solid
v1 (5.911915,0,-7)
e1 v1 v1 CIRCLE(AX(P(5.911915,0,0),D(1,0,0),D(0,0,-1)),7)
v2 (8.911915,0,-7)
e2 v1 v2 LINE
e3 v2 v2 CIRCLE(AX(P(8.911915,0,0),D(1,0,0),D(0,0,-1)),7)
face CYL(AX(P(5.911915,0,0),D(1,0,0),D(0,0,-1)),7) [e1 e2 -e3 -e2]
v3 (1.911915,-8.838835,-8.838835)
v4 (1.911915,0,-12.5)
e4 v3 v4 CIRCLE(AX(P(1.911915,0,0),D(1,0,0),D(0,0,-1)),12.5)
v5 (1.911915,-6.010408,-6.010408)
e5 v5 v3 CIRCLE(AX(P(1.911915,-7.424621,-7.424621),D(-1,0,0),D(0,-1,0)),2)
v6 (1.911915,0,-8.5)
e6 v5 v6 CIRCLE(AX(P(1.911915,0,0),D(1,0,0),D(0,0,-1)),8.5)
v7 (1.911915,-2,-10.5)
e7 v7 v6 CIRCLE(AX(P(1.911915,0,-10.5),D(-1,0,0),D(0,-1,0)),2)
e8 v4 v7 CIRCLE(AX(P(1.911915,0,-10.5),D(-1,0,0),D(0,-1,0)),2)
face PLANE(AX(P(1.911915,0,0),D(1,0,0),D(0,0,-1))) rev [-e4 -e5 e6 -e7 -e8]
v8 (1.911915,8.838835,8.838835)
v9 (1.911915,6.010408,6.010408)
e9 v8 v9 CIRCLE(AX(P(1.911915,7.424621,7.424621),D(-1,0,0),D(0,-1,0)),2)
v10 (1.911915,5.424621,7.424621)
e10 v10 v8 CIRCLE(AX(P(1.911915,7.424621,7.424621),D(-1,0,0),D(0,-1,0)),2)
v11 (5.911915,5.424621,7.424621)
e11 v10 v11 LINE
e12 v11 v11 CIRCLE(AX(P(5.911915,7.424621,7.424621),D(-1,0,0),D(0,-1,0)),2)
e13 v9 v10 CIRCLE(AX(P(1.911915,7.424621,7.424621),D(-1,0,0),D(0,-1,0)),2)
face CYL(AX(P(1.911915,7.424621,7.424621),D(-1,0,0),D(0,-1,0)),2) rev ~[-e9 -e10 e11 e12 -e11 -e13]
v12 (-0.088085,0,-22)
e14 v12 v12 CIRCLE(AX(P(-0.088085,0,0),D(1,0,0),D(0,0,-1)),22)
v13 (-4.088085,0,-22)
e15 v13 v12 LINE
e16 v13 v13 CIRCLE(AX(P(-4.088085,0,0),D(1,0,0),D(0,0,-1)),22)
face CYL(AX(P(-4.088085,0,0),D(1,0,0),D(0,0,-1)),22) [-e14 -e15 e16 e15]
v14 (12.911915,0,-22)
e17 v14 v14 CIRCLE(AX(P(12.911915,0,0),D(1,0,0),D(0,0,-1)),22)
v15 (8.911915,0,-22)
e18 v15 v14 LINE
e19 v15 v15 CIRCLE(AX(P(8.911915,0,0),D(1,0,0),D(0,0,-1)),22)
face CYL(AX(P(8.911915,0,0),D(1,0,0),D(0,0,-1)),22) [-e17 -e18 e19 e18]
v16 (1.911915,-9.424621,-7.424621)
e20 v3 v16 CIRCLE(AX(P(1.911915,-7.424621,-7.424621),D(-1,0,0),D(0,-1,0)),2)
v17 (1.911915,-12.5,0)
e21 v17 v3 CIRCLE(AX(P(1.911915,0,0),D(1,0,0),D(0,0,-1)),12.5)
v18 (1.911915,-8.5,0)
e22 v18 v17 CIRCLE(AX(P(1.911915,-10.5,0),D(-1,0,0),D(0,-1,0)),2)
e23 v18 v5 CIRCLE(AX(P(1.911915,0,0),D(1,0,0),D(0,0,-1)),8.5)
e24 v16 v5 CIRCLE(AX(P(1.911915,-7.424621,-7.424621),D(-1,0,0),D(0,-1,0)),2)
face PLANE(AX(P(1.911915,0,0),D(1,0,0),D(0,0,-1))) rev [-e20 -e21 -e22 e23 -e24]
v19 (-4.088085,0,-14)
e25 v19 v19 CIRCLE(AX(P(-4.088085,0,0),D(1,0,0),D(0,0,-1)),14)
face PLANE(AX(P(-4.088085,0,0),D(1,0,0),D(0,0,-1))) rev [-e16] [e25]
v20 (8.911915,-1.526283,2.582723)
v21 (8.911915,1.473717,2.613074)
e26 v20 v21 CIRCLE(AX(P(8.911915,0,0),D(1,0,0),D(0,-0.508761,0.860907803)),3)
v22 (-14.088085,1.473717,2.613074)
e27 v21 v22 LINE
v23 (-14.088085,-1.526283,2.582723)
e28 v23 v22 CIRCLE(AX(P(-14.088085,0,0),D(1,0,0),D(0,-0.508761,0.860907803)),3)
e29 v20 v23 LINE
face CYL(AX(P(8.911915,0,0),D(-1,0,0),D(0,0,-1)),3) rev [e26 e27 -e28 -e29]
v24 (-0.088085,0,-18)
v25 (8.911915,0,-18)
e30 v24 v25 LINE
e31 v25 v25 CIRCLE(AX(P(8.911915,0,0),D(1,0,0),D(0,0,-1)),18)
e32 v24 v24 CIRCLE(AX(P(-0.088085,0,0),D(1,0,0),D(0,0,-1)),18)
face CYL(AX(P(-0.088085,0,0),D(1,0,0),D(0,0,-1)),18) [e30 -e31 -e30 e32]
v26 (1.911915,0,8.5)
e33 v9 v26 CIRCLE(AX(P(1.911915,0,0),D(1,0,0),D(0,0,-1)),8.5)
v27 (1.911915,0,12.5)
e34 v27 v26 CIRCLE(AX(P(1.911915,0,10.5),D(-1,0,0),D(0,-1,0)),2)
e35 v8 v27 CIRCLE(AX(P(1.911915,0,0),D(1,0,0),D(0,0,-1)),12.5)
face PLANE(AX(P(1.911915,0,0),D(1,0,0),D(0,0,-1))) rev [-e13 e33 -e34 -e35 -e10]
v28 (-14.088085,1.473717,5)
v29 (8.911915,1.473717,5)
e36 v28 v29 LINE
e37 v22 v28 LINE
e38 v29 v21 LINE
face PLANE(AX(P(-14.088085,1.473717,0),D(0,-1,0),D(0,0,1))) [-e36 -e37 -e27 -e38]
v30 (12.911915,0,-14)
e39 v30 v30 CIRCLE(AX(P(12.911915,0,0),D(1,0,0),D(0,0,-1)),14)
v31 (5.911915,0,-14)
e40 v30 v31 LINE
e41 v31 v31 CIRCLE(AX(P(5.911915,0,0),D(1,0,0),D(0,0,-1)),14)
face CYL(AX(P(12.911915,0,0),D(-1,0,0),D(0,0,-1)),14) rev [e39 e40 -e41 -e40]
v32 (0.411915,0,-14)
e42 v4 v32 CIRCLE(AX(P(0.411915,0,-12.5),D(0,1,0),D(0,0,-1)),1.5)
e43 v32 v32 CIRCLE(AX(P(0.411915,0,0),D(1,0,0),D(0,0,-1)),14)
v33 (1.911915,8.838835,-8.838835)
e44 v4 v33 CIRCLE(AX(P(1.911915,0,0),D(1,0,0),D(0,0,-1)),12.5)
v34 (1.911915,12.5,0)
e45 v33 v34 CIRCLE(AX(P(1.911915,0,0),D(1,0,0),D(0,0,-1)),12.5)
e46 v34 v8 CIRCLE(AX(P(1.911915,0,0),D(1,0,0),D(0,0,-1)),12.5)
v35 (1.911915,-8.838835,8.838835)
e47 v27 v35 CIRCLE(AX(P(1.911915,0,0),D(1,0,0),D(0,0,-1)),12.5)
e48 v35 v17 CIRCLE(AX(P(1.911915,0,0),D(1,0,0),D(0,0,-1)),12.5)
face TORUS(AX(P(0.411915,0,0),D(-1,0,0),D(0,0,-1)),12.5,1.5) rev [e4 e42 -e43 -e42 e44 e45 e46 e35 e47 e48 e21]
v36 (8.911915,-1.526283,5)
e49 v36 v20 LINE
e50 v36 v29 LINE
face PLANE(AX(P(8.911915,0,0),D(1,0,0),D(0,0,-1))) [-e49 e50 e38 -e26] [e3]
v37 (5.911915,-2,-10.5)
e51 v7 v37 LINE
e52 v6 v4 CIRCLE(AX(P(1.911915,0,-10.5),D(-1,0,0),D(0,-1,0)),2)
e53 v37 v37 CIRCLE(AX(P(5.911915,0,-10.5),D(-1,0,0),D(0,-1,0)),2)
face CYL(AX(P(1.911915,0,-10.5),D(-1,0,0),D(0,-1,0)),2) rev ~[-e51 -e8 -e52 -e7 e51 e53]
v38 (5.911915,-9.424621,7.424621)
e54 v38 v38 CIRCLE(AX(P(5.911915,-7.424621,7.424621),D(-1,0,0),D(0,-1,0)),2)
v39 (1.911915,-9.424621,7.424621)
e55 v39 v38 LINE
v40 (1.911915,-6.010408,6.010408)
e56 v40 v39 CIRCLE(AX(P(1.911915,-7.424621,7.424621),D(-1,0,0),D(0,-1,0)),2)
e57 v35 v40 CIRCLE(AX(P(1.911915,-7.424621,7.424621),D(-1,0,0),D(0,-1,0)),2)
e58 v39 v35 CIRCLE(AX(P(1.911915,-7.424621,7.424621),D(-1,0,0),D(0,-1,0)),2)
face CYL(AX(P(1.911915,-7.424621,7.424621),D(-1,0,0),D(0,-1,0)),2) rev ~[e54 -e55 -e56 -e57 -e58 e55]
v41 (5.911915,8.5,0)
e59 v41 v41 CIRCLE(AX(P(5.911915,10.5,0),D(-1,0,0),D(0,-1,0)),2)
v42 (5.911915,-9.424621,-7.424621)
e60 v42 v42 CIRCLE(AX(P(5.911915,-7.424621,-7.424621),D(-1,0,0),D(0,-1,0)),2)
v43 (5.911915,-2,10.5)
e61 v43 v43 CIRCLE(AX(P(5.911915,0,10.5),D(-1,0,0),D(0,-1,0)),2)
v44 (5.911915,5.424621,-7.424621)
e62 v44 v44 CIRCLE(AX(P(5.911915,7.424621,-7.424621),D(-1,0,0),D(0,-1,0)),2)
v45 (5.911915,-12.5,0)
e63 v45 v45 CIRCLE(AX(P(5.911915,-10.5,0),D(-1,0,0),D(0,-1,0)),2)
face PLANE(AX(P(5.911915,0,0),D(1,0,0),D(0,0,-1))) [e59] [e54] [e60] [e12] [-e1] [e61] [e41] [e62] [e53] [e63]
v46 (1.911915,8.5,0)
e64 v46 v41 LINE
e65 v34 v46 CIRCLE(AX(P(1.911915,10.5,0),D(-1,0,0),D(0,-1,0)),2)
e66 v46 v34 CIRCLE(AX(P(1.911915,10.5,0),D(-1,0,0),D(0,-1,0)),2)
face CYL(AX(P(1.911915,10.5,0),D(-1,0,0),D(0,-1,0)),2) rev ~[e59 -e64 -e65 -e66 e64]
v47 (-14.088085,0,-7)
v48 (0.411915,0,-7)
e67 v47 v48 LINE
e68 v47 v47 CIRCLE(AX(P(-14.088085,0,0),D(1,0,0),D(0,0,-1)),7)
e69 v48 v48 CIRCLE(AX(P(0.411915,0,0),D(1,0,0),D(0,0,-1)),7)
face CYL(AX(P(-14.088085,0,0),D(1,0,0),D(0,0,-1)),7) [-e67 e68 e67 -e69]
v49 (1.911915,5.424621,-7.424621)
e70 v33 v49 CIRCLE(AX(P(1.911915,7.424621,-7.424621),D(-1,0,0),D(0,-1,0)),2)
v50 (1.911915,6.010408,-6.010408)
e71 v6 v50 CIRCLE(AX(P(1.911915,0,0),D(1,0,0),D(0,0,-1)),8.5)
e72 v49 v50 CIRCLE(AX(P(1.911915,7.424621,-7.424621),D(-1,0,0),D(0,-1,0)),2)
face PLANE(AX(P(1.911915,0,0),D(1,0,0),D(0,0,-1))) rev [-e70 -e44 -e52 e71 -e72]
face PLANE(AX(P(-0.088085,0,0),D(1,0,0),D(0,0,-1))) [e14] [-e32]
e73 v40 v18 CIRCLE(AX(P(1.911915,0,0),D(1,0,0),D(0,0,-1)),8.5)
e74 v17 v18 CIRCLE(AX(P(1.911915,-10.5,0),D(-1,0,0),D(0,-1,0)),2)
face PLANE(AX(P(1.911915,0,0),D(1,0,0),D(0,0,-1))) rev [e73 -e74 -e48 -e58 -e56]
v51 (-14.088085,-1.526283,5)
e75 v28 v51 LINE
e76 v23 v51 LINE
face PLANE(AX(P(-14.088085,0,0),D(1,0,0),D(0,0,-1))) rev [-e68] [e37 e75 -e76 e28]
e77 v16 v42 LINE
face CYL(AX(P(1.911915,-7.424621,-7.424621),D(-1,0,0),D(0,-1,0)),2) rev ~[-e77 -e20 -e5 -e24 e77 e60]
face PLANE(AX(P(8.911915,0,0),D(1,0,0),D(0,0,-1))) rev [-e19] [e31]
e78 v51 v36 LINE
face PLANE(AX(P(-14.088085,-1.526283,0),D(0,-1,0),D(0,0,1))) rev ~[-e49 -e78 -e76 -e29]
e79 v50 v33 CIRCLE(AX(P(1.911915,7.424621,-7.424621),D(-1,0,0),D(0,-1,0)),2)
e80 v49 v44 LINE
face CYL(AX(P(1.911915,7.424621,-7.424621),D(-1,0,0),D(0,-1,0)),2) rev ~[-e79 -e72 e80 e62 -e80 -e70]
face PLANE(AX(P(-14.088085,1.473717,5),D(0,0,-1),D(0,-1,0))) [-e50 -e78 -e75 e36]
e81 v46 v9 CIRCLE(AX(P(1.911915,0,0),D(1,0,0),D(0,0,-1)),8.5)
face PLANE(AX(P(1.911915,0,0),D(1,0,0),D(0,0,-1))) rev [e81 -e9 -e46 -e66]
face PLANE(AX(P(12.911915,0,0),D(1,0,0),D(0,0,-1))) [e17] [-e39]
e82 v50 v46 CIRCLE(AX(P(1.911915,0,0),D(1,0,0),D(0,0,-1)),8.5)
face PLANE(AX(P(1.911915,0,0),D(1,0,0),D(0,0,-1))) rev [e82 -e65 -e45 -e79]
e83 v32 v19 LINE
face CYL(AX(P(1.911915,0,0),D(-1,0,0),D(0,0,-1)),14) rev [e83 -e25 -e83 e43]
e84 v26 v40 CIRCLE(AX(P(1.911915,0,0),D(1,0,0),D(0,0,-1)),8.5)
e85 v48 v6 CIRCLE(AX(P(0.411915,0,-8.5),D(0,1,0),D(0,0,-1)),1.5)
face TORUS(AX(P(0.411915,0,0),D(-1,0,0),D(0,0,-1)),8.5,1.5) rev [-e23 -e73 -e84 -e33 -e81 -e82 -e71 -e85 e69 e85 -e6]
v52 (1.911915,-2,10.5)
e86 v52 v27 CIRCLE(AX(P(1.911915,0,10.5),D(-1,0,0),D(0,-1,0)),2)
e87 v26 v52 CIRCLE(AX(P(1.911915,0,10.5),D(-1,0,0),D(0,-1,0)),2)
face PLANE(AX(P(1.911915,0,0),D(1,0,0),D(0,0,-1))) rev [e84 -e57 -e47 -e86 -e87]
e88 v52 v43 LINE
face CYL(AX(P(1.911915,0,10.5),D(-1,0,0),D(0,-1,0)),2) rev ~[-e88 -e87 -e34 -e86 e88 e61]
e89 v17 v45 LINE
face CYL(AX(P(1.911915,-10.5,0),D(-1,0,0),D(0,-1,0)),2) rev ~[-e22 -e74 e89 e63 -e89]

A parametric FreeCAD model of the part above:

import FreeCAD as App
import Part
import Sketcher
Q = App.Units.Quantity


def edges_at(feature, points):
    """Names of the edges that pass closest to the given points."""
    edges = feature.Shape.Edges
    near = lambda p: min(range(len(edges)), key=lambda i: edges[i].distToShape(Part.Vertex(*p))[0])
    return sorted({f"Edge{near(p) + 1}" for p in points})


def add_polygon(sketch, points):
    """Adds a closed chain of lines whose ends are joined by coincident constraints."""
    first, n = sketch.GeometryCount, len(points)
    for a, b in zip(points, points[1:] + points[:1]):
        sketch.addGeometry(Part.LineSegment(App.Vector(*a, 0), App.Vector(*b, 0)), False)
    for i in range(n):
        sketch.addConstraint(Sketcher.Constraint("Coincident", first + i, 2, first + (i + 1) % n, 1))

doc = App.newDocument("Part")
body = doc.addObject("PartDesign::Body", "Body")

sketch1 = body.newObject("Sketcher::SketchObject", "Sketch")
sketch1.AttachmentSupport = (doc.getObject("XZ_Plane"), [""])
sketch1.MapMode = "FlatFace"
add_polygon(sketch1, [(8.9, -3), (-14.1, -3), (-14.1, -7), (1.9, -7), (1.9, -14), (-4.1, -14), (-4.1, -22), (-0.1, -22), (-0.1, -18), (8.9, -18), (8.9, -22), (12.9, -22), (12.9, -14), (5.9, -14), (5.9, -7), (8.9, -7)])
sketch1.addConstraint(Sketcher.Constraint("Horizontal", 0))
sketch1.addConstraint(Sketcher.Constraint("Vertical", 1))
sketch1.addConstraint(Sketcher.Constraint("Horizontal", 2))
sketch1.addConstraint(Sketcher.Constraint("Vertical", 3))
sketch1.addConstraint(Sketcher.Constraint("Horizontal", 4))
sketch1.addConstraint(Sketcher.Constraint("Vertical", 5))
sketch1.addConstraint(Sketcher.Constraint("Horizontal", 6))
sketch1.addConstraint(Sketcher.Constraint("Vertical", 7))
sketch1.addConstraint(Sketcher.Constraint("Horizontal", 8))
sketch1.addConstraint(Sketcher.Constraint("Vertical", 9))
sketch1.addConstraint(Sketcher.Constraint("Horizontal", 10))
sketch1.addConstraint(Sketcher.Constraint("Vertical", 11))
sketch1.addConstraint(Sketcher.Constraint("Horizontal", 12))
sketch1.addConstraint(Sketcher.Constraint("Vertical", 13))
sketch1.addConstraint(Sketcher.Constraint("Horizontal", 14))
sketch1.addConstraint(Sketcher.Constraint("Vertical", 15))
sketch1.addConstraint(Sketcher.Constraint("Horizontal", 6, 2, 9, 2))
sketch1.addConstraint(Sketcher.Constraint("Horizontal", 4, 2, 11, 2))
sketch1.addConstraint(Sketcher.Constraint("Horizontal", 2, 2, 13, 2))
sketch1.addConstraint(Sketcher.Constraint("Vertical", 9, 2, 14, 2))
sketch1.addConstraint(Sketcher.Constraint("Equal", 6, 10))
sketch1.addConstraint(Sketcher.Constraint("Equal", 10, 1))
sketch1.addConstraint(Sketcher.Constraint("Equal", 12, 3))
sketch1.addConstraint(Sketcher.Constraint("Equal", 1, 7))
sketch1.addConstraint(Sketcher.Constraint("DistanceX", 0, 2, 0, 1, Q("23 mm")))
sketch1.addConstraint(Sketcher.Constraint("DistanceX", 2, 1, 2, 2, Q("16 mm")))
sketch1.addConstraint(Sketcher.Constraint("DistanceX", 4, 2, 4, 1, Q("6 mm")))
sketch1.addConstraint(Sketcher.Constraint("DistanceX", 6, 1, 6, 2, Q("4 mm")))
sketch1.addConstraint(Sketcher.Constraint("DistanceX", 12, 2, 12, 1, Q("7 mm")))
sketch1.addConstraint(Sketcher.Constraint("DistanceY", 5, 2, 5, 1, Q("8 mm")))
sketch1.addConstraint(Sketcher.Constraint("DistanceY", 0, 2, -1, 1, Q("3 mm")))
sketch1.addConstraint(Sketcher.Constraint("DistanceX", 0, 2, -1, 1, Q("14.088085 mm")))
revolution = body.newObject("PartDesign::Revolution", "Revolution")
revolution.Profile = sketch1
revolution.ReferenceAxis = (sketch1, ["H_Axis"])
revolution.Angle = 360
doc.recompute()

fillet = body.newObject("PartDesign::Fillet", "Fillet")
fillet.Base = (revolution, edges_at(revolution, [(1.912, 0, 7), (1.912, 0, 14)]))
fillet.Radius = 1.5

sketch2 = body.newObject("Sketcher::SketchObject", "Sketch001")
sketch2.AttachmentSupport = (doc.getObject("YZ_Plane"), [""])
sketch2.MapMode = "FlatFace"
sketch2.AttachmentOffset = App.Placement(App.Vector(0, 0, 1.911915), App.Rotation())
sketch2.addGeometry(Part.Circle(App.Vector(10.5, 0, 0), App.Vector(0, 0, 1), 2), False)
sketch2.addGeometry(Part.Circle(App.Vector(7.4, -7.4, 0), App.Vector(0, 0, 1), 2), False)
sketch2.addGeometry(Part.Circle(App.Vector(0, -10.5, 0), App.Vector(0, 0, 1), 2), False)
sketch2.addGeometry(Part.Circle(App.Vector(-7.4, -7.4, 0), App.Vector(0, 0, 1), 2), False)
sketch2.addGeometry(Part.Circle(App.Vector(-10.5, 0, 0), App.Vector(0, 0, 1), 2), False)
sketch2.addGeometry(Part.Circle(App.Vector(-7.4, 7.4, 0), App.Vector(0, 0, 1), 2), False)
sketch2.addGeometry(Part.Circle(App.Vector(0, 10.5, 0), App.Vector(0, 0, 1), 2), False)
sketch2.addGeometry(Part.Circle(App.Vector(7.4, 7.4, 0), App.Vector(0, 0, 1), 2), False)
sketch2.addConstraint(Sketcher.Constraint("Equal", 0, 1))
sketch2.addConstraint(Sketcher.Constraint("Equal", 1, 2))
sketch2.addConstraint(Sketcher.Constraint("Equal", 2, 3))
sketch2.addConstraint(Sketcher.Constraint("Equal", 3, 4))
sketch2.addConstraint(Sketcher.Constraint("Equal", 4, 5))
sketch2.addConstraint(Sketcher.Constraint("Equal", 5, 6))
sketch2.addConstraint(Sketcher.Constraint("Equal", 6, 7))
sketch2.addConstraint(Sketcher.Constraint("Symmetric", 0, 3, 4, 3, -1, 1))
sketch2.addConstraint(Sketcher.Constraint("Symmetric", 1, 3, 5, 3, -1, 1))
sketch2.addConstraint(Sketcher.Constraint("Symmetric", 2, 3, 6, 3, -1, 1))
sketch2.addConstraint(Sketcher.Constraint("Symmetric", 3, 3, 7, 3, -1, 1))
sketch2.addConstraint(Sketcher.Constraint("Symmetric", 1, 3, 3, 3, -2))
sketch2.addConstraint(Sketcher.Constraint("PointOnObject", 0, 3, -1))
sketch2.addConstraint(Sketcher.Constraint("PointOnObject", 2, 3, -2))
sketch2.addConstraint(Sketcher.Constraint("Diameter", 0, Q("4 mm")))
sketch2.addConstraint(Sketcher.Constraint("DistanceX", 4, 3, 0, 3, Q("21 mm")))
sketch2.addConstraint(Sketcher.Constraint("DistanceY", 2, 3, -1, 1, Q("10.5 mm")))
sketch2.addConstraint(Sketcher.Constraint("DistanceX", -1, 1, 1, 3, Q("7.424621 mm")))
sketch2.addConstraint(Sketcher.Constraint("DistanceY", 1, 3, -1, 1, Q("7.424621 mm")))
pocket1 = body.newObject("PartDesign::Pocket", "Pocket")
pocket1.Profile = sketch2
pocket1.Length = 25
pocket1.Reversed = True

sketch3 = body.newObject("Sketcher::SketchObject", "Sketch002")
sketch3.AttachmentSupport = (doc.getObject("YZ_Plane"), [""])
sketch3.MapMode = "FlatFace"
sketch3.AttachmentOffset = App.Placement(App.Vector(0, 0, -14.088085), App.Rotation())
add_polygon(sketch3, [(1.5, 5), (1.5, 0), (-1.5, 0), (-1.5, 5)])
sketch3.addConstraint(Sketcher.Constraint("Vertical", 0))
sketch3.addConstraint(Sketcher.Constraint("Horizontal", 1))
sketch3.addConstraint(Sketcher.Constraint("Vertical", 2))
sketch3.addConstraint(Sketcher.Constraint("Horizontal", 3))
sketch3.addConstraint(Sketcher.Constraint("PointOnObject", 0, 2, -1))
sketch3.addConstraint(Sketcher.Constraint("DistanceX", 1, 2, 1, 1, Q("3 mm")))
sketch3.addConstraint(Sketcher.Constraint("DistanceY", 0, 2, 0, 1, Q("5 mm")))
sketch3.addConstraint(Sketcher.Constraint("DistanceX", -1, 1, 0, 2, Q("1.473717 mm")))
pocket2 = body.newObject("PartDesign::Pocket", "Pocket001")
pocket2.Profile = sketch3
pocket2.Length = 50
pocket2.Reversed = True

doc.recompute()
